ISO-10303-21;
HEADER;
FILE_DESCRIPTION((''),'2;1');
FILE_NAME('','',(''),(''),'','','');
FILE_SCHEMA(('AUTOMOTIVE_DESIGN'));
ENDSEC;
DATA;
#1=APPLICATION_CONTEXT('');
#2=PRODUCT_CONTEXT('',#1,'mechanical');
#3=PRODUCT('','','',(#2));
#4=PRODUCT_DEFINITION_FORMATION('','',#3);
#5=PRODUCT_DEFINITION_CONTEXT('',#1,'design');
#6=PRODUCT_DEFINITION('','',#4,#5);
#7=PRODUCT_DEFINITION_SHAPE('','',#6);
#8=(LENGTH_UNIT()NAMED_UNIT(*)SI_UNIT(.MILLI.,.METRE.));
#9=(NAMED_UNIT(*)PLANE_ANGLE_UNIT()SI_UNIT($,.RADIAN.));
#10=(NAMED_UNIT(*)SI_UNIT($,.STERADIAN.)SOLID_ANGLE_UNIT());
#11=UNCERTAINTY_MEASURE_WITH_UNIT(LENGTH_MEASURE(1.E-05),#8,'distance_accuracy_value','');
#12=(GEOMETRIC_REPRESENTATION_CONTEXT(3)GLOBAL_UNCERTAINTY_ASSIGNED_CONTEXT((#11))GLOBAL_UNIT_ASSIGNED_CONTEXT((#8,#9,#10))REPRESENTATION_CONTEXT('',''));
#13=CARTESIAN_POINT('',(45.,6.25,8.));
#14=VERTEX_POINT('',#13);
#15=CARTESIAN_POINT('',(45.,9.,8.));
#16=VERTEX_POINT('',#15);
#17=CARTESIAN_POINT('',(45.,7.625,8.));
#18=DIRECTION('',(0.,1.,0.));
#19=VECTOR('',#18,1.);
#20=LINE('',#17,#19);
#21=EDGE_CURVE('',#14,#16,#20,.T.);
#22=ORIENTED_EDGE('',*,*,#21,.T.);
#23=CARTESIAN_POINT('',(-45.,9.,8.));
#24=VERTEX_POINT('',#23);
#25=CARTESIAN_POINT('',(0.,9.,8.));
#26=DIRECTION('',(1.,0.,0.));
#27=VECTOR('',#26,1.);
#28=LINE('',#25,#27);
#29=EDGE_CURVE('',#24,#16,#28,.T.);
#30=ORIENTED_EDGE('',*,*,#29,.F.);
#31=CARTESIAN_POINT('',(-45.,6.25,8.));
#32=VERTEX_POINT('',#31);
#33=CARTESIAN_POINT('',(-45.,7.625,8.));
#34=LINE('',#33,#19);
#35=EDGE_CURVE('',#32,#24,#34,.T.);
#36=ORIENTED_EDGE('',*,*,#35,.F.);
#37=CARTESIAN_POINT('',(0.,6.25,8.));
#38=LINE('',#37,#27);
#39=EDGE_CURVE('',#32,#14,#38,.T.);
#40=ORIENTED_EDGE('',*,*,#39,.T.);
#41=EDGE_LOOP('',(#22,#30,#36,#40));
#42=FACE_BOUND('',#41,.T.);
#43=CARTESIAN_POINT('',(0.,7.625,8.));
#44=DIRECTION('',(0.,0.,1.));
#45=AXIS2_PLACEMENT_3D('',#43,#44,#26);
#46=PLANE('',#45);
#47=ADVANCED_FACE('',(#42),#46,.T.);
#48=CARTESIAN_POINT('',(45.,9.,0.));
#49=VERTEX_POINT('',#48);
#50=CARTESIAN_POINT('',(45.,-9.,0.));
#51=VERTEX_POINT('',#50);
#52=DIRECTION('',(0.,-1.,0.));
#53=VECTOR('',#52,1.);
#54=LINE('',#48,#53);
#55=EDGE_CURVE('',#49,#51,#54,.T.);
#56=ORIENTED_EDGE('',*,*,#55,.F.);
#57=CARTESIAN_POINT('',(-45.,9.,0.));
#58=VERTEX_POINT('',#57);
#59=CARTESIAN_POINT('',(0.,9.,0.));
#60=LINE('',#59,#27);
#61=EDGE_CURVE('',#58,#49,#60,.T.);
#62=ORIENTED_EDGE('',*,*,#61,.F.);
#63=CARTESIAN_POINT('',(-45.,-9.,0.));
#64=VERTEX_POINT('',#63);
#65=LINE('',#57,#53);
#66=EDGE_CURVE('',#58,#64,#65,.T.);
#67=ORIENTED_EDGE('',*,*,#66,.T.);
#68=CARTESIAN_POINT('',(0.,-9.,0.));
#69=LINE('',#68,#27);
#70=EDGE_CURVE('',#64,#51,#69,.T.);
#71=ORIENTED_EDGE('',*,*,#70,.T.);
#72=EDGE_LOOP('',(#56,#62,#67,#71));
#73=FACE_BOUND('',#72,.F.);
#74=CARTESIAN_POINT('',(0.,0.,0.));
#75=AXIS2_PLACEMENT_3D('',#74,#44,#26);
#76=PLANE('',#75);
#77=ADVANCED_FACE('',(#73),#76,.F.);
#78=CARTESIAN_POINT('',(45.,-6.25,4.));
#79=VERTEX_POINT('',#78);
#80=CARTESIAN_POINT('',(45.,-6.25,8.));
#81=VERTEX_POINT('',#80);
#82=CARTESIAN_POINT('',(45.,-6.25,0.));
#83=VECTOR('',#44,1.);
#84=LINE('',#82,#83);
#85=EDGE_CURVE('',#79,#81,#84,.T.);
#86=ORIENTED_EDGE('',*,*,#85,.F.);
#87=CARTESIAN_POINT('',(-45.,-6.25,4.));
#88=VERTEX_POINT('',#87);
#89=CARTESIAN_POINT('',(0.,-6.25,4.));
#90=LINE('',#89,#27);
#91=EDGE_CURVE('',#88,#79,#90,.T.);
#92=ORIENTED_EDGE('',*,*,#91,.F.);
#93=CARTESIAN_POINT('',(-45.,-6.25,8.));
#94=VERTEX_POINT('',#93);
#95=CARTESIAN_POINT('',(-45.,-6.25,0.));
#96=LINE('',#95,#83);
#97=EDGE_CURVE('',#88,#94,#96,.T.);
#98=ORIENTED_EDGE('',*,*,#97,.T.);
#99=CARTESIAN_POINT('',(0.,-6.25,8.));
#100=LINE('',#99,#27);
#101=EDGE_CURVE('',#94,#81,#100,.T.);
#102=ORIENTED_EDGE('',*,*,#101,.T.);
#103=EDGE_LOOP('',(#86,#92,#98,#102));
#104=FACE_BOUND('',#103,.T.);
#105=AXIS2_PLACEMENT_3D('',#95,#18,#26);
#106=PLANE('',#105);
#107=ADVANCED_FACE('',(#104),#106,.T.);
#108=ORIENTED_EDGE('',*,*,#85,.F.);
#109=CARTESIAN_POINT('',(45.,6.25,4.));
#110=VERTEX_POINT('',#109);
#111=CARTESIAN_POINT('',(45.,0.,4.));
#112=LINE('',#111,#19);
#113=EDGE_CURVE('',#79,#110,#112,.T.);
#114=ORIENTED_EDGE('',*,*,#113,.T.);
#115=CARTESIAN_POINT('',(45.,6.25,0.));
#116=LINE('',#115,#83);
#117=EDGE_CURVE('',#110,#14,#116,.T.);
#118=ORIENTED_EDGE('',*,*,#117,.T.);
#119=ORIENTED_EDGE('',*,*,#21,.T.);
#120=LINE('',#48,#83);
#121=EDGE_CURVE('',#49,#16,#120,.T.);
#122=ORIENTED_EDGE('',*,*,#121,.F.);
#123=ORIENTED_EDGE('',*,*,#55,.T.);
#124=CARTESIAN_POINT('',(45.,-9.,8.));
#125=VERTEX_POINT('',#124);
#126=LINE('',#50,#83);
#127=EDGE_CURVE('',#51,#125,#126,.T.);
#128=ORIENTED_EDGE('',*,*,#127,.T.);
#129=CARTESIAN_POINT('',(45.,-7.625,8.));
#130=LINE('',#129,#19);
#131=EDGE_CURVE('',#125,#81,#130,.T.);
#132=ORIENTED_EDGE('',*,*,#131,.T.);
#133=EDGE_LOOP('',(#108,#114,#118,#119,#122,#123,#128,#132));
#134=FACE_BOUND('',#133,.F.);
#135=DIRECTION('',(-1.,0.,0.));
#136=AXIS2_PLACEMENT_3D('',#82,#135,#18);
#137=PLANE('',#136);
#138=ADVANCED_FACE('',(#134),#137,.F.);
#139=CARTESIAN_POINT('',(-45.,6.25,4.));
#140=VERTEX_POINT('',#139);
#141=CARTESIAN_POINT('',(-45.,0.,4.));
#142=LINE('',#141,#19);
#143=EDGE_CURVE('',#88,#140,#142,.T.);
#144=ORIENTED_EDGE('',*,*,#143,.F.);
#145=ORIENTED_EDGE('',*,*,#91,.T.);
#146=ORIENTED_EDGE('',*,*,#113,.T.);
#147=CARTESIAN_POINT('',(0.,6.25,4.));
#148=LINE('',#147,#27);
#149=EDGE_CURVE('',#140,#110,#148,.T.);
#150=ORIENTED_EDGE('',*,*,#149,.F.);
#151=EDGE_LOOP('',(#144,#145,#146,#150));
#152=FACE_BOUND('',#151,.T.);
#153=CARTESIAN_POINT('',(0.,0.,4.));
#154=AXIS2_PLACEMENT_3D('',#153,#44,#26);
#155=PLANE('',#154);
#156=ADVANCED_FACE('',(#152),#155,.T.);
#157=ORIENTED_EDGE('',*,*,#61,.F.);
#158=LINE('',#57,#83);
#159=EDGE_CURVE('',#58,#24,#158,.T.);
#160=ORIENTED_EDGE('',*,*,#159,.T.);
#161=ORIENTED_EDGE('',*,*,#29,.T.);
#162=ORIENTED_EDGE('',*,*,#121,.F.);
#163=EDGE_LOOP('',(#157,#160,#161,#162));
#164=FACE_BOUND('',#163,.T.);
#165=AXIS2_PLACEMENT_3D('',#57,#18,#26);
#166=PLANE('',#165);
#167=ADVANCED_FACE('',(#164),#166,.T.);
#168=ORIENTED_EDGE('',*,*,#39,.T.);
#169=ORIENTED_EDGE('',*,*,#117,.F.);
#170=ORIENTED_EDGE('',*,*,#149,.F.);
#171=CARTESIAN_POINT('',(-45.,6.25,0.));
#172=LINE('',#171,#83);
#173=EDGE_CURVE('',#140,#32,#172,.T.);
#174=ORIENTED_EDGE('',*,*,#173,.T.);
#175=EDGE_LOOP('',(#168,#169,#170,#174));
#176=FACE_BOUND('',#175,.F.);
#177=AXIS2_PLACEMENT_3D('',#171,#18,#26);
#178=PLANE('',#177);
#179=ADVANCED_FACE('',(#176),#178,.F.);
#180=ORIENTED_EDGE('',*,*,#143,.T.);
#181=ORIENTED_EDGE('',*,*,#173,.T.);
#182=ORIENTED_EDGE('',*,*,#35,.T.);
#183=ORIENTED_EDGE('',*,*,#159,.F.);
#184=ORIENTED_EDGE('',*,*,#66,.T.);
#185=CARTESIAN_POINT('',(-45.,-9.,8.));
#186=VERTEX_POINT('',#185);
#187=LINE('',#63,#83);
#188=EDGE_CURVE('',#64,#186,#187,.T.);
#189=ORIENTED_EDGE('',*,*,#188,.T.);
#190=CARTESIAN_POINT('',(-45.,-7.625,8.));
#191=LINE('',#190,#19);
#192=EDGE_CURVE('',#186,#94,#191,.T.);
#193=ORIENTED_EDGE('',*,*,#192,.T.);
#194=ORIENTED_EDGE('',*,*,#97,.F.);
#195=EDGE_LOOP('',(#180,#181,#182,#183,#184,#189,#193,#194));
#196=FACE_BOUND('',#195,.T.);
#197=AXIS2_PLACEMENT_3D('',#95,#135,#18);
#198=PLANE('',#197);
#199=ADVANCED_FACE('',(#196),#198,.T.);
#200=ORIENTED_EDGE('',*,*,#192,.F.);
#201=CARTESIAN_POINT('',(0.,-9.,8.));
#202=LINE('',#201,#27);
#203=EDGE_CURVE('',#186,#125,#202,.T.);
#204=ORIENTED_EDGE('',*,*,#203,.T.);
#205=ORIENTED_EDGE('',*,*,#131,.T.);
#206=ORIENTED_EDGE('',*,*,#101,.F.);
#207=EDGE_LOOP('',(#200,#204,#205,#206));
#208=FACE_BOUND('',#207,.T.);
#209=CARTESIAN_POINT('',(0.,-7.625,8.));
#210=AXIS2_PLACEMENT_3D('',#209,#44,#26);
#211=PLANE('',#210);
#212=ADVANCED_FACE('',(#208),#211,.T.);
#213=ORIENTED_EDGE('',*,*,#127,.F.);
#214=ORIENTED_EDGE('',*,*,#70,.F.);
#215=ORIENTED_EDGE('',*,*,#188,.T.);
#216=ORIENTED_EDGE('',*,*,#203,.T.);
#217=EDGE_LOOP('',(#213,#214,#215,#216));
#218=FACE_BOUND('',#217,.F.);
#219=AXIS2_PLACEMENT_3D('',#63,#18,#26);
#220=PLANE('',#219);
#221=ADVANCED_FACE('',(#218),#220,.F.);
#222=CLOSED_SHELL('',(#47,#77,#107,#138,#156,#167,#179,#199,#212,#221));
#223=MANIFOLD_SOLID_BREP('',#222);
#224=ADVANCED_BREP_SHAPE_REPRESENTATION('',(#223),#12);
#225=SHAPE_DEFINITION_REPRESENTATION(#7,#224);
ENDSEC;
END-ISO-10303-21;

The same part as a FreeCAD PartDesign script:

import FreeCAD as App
import Part
import Sketcher

V = App.Vector

doc = App.newDocument("Part")
body = doc.addObject("PartDesign::Body", "Body")

sketch1 = body.newObject("Sketcher::SketchObject", "Sketch")
sketch1.AttachmentSupport = (doc.getObject("XY_Plane"), [""])
sketch1.MapMode = "FlatFace"
sketch1.addGeometry([
    Part.LineSegment(V(-45, 9, 0), V(-45, 6.2, 0)),
    Part.LineSegment(V(-45, 6.2, 0), V(45, 6.2, 0)),
    Part.LineSegment(V(45, 6.2, 0), V(45, 9, 0)),
    Part.LineSegment(V(45, 9, 0), V(-45, 9, 0)),
], False)
sketch1.addConstraint([
    Sketcher.Constraint("Coincident", 0, 2, 1, 1),
    Sketcher.Constraint("Coincident", 1, 2, 2, 1),
    Sketcher.Constraint("Coincident", 2, 2, 3, 1),
    Sketcher.Constraint("Coincident", 3, 2, 0, 1),
    Sketcher.Constraint("Vertical", 0),
    Sketcher.Constraint("Horizontal", 1),
    Sketcher.Constraint("Vertical", 2),
    Sketcher.Constraint("Horizontal", 3),
    Sketcher.Constraint("DistanceX", 1, 1, 1, 2, 90.0),
    Sketcher.Constraint("DistanceX", 0, 2, -1, 1, 45.0),
    Sketcher.Constraint("DistanceY", -1, 1, 2, 2, 9.0),
    Sketcher.Constraint("DistanceY", 0, 2, 0, 1, 2.75),
])
pad1 = body.newObject("PartDesign::Pad", "Pad")
pad1.Profile = sketch1
pad1.Length = 8
body2 = doc.addObject("PartDesign::Body", "Body001")

sketch2 = body2.newObject("Sketcher::SketchObject", "Sketch001")
sketch2.AttachmentSupport = (doc.getObject("XY_Plane001"), [""])
sketch2.MapMode = "FlatFace"
sketch2.addGeometry([
    Part.LineSegment(V(-45, -6.2, 0), V(-45, -9, 0)),
    Part.LineSegment(V(-45, -9, 0), V(45, -9, 0)),
    Part.LineSegment(V(45, -9, 0), V(45, -6.2, 0)),
    Part.LineSegment(V(45, -6.2, 0), V(-45, -6.2, 0)),
], False)
sketch2.addConstraint([
    Sketcher.Constraint("Coincident", 0, 2, 1, 1),
    Sketcher.Constraint("Coincident", 1, 2, 2, 1),
    Sketcher.Constraint("Coincident", 2, 2, 3, 1),
    Sketcher.Constraint("Coincident", 3, 2, 0, 1),
    Sketcher.Constraint("Vertical", 0),
    Sketcher.Constraint("Horizontal", 1),
    Sketcher.Constraint("Vertical", 2),
    Sketcher.Constraint("Horizontal", 3),
    Sketcher.Constraint("DistanceX", 1, 1, 1, 2, 90.0),
    Sketcher.Constraint("DistanceX", 0, 2, -1, 1, 45.0),
    Sketcher.Constraint("DistanceY", 0, 2, -1, 1, 9.0),
    Sketcher.Constraint("DistanceY", 0, 2, 0, 1, 2.75),
])
pad2 = body2.newObject("PartDesign::Pad", "Pad001")
pad2.Profile = sketch2
pad2.Length = 8
body.AllowCompound = True
doc.recompute()

boolean = body.newObject("PartDesign::Boolean", "Boolean")
boolean.Type = "Fuse"
boolean.addObjects([body2])

sketch3 = body.newObject("Sketcher::SketchObject", "Sketch002")
sketch3.AttachmentSupport = (doc.getObject("XY_Plane"), [""])
sketch3.MapMode = "FlatFace"
sketch3.addGeometry([
    Part.LineSegment(V(-45, 6, 0), V(-45, -6, 0)),
    Part.LineSegment(V(-45, -6, 0), V(45, -6, 0)),
    Part.LineSegment(V(45, -6, 0), V(45, 6, 0)),
    Part.LineSegment(V(45, 6, 0), V(-45, 6, 0)),
], False)
sketch3.addConstraint([
    Sketcher.Constraint("Coincident", 0, 2, 1, 1),
    Sketcher.Constraint("Coincident", 1, 2, 2, 1),
    Sketcher.Constraint("Coincident", 2, 2, 3, 1),
    Sketcher.Constraint("Coincident", 3, 2, 0, 1),
    Sketcher.Constraint("Vertical", 0),
    Sketcher.Constraint("Horizontal", 1),
    Sketcher.Constraint("Vertical", 2),
    Sketcher.Constraint("Horizontal", 3),
    Sketcher.Constraint("Symmetric", 0, 2, 2, 2, -1, 1),
    Sketcher.Constraint("DistanceX", 1, 1, 1, 2, 90.0),
    Sketcher.Constraint("DistanceY", 0, 2, 0, 1, 12.5),
])
pad3 = body.newObject("PartDesign::Pad", "Pad002")
pad3.Profile = sketch3
pad3.Length = 4

doc.recompute()
